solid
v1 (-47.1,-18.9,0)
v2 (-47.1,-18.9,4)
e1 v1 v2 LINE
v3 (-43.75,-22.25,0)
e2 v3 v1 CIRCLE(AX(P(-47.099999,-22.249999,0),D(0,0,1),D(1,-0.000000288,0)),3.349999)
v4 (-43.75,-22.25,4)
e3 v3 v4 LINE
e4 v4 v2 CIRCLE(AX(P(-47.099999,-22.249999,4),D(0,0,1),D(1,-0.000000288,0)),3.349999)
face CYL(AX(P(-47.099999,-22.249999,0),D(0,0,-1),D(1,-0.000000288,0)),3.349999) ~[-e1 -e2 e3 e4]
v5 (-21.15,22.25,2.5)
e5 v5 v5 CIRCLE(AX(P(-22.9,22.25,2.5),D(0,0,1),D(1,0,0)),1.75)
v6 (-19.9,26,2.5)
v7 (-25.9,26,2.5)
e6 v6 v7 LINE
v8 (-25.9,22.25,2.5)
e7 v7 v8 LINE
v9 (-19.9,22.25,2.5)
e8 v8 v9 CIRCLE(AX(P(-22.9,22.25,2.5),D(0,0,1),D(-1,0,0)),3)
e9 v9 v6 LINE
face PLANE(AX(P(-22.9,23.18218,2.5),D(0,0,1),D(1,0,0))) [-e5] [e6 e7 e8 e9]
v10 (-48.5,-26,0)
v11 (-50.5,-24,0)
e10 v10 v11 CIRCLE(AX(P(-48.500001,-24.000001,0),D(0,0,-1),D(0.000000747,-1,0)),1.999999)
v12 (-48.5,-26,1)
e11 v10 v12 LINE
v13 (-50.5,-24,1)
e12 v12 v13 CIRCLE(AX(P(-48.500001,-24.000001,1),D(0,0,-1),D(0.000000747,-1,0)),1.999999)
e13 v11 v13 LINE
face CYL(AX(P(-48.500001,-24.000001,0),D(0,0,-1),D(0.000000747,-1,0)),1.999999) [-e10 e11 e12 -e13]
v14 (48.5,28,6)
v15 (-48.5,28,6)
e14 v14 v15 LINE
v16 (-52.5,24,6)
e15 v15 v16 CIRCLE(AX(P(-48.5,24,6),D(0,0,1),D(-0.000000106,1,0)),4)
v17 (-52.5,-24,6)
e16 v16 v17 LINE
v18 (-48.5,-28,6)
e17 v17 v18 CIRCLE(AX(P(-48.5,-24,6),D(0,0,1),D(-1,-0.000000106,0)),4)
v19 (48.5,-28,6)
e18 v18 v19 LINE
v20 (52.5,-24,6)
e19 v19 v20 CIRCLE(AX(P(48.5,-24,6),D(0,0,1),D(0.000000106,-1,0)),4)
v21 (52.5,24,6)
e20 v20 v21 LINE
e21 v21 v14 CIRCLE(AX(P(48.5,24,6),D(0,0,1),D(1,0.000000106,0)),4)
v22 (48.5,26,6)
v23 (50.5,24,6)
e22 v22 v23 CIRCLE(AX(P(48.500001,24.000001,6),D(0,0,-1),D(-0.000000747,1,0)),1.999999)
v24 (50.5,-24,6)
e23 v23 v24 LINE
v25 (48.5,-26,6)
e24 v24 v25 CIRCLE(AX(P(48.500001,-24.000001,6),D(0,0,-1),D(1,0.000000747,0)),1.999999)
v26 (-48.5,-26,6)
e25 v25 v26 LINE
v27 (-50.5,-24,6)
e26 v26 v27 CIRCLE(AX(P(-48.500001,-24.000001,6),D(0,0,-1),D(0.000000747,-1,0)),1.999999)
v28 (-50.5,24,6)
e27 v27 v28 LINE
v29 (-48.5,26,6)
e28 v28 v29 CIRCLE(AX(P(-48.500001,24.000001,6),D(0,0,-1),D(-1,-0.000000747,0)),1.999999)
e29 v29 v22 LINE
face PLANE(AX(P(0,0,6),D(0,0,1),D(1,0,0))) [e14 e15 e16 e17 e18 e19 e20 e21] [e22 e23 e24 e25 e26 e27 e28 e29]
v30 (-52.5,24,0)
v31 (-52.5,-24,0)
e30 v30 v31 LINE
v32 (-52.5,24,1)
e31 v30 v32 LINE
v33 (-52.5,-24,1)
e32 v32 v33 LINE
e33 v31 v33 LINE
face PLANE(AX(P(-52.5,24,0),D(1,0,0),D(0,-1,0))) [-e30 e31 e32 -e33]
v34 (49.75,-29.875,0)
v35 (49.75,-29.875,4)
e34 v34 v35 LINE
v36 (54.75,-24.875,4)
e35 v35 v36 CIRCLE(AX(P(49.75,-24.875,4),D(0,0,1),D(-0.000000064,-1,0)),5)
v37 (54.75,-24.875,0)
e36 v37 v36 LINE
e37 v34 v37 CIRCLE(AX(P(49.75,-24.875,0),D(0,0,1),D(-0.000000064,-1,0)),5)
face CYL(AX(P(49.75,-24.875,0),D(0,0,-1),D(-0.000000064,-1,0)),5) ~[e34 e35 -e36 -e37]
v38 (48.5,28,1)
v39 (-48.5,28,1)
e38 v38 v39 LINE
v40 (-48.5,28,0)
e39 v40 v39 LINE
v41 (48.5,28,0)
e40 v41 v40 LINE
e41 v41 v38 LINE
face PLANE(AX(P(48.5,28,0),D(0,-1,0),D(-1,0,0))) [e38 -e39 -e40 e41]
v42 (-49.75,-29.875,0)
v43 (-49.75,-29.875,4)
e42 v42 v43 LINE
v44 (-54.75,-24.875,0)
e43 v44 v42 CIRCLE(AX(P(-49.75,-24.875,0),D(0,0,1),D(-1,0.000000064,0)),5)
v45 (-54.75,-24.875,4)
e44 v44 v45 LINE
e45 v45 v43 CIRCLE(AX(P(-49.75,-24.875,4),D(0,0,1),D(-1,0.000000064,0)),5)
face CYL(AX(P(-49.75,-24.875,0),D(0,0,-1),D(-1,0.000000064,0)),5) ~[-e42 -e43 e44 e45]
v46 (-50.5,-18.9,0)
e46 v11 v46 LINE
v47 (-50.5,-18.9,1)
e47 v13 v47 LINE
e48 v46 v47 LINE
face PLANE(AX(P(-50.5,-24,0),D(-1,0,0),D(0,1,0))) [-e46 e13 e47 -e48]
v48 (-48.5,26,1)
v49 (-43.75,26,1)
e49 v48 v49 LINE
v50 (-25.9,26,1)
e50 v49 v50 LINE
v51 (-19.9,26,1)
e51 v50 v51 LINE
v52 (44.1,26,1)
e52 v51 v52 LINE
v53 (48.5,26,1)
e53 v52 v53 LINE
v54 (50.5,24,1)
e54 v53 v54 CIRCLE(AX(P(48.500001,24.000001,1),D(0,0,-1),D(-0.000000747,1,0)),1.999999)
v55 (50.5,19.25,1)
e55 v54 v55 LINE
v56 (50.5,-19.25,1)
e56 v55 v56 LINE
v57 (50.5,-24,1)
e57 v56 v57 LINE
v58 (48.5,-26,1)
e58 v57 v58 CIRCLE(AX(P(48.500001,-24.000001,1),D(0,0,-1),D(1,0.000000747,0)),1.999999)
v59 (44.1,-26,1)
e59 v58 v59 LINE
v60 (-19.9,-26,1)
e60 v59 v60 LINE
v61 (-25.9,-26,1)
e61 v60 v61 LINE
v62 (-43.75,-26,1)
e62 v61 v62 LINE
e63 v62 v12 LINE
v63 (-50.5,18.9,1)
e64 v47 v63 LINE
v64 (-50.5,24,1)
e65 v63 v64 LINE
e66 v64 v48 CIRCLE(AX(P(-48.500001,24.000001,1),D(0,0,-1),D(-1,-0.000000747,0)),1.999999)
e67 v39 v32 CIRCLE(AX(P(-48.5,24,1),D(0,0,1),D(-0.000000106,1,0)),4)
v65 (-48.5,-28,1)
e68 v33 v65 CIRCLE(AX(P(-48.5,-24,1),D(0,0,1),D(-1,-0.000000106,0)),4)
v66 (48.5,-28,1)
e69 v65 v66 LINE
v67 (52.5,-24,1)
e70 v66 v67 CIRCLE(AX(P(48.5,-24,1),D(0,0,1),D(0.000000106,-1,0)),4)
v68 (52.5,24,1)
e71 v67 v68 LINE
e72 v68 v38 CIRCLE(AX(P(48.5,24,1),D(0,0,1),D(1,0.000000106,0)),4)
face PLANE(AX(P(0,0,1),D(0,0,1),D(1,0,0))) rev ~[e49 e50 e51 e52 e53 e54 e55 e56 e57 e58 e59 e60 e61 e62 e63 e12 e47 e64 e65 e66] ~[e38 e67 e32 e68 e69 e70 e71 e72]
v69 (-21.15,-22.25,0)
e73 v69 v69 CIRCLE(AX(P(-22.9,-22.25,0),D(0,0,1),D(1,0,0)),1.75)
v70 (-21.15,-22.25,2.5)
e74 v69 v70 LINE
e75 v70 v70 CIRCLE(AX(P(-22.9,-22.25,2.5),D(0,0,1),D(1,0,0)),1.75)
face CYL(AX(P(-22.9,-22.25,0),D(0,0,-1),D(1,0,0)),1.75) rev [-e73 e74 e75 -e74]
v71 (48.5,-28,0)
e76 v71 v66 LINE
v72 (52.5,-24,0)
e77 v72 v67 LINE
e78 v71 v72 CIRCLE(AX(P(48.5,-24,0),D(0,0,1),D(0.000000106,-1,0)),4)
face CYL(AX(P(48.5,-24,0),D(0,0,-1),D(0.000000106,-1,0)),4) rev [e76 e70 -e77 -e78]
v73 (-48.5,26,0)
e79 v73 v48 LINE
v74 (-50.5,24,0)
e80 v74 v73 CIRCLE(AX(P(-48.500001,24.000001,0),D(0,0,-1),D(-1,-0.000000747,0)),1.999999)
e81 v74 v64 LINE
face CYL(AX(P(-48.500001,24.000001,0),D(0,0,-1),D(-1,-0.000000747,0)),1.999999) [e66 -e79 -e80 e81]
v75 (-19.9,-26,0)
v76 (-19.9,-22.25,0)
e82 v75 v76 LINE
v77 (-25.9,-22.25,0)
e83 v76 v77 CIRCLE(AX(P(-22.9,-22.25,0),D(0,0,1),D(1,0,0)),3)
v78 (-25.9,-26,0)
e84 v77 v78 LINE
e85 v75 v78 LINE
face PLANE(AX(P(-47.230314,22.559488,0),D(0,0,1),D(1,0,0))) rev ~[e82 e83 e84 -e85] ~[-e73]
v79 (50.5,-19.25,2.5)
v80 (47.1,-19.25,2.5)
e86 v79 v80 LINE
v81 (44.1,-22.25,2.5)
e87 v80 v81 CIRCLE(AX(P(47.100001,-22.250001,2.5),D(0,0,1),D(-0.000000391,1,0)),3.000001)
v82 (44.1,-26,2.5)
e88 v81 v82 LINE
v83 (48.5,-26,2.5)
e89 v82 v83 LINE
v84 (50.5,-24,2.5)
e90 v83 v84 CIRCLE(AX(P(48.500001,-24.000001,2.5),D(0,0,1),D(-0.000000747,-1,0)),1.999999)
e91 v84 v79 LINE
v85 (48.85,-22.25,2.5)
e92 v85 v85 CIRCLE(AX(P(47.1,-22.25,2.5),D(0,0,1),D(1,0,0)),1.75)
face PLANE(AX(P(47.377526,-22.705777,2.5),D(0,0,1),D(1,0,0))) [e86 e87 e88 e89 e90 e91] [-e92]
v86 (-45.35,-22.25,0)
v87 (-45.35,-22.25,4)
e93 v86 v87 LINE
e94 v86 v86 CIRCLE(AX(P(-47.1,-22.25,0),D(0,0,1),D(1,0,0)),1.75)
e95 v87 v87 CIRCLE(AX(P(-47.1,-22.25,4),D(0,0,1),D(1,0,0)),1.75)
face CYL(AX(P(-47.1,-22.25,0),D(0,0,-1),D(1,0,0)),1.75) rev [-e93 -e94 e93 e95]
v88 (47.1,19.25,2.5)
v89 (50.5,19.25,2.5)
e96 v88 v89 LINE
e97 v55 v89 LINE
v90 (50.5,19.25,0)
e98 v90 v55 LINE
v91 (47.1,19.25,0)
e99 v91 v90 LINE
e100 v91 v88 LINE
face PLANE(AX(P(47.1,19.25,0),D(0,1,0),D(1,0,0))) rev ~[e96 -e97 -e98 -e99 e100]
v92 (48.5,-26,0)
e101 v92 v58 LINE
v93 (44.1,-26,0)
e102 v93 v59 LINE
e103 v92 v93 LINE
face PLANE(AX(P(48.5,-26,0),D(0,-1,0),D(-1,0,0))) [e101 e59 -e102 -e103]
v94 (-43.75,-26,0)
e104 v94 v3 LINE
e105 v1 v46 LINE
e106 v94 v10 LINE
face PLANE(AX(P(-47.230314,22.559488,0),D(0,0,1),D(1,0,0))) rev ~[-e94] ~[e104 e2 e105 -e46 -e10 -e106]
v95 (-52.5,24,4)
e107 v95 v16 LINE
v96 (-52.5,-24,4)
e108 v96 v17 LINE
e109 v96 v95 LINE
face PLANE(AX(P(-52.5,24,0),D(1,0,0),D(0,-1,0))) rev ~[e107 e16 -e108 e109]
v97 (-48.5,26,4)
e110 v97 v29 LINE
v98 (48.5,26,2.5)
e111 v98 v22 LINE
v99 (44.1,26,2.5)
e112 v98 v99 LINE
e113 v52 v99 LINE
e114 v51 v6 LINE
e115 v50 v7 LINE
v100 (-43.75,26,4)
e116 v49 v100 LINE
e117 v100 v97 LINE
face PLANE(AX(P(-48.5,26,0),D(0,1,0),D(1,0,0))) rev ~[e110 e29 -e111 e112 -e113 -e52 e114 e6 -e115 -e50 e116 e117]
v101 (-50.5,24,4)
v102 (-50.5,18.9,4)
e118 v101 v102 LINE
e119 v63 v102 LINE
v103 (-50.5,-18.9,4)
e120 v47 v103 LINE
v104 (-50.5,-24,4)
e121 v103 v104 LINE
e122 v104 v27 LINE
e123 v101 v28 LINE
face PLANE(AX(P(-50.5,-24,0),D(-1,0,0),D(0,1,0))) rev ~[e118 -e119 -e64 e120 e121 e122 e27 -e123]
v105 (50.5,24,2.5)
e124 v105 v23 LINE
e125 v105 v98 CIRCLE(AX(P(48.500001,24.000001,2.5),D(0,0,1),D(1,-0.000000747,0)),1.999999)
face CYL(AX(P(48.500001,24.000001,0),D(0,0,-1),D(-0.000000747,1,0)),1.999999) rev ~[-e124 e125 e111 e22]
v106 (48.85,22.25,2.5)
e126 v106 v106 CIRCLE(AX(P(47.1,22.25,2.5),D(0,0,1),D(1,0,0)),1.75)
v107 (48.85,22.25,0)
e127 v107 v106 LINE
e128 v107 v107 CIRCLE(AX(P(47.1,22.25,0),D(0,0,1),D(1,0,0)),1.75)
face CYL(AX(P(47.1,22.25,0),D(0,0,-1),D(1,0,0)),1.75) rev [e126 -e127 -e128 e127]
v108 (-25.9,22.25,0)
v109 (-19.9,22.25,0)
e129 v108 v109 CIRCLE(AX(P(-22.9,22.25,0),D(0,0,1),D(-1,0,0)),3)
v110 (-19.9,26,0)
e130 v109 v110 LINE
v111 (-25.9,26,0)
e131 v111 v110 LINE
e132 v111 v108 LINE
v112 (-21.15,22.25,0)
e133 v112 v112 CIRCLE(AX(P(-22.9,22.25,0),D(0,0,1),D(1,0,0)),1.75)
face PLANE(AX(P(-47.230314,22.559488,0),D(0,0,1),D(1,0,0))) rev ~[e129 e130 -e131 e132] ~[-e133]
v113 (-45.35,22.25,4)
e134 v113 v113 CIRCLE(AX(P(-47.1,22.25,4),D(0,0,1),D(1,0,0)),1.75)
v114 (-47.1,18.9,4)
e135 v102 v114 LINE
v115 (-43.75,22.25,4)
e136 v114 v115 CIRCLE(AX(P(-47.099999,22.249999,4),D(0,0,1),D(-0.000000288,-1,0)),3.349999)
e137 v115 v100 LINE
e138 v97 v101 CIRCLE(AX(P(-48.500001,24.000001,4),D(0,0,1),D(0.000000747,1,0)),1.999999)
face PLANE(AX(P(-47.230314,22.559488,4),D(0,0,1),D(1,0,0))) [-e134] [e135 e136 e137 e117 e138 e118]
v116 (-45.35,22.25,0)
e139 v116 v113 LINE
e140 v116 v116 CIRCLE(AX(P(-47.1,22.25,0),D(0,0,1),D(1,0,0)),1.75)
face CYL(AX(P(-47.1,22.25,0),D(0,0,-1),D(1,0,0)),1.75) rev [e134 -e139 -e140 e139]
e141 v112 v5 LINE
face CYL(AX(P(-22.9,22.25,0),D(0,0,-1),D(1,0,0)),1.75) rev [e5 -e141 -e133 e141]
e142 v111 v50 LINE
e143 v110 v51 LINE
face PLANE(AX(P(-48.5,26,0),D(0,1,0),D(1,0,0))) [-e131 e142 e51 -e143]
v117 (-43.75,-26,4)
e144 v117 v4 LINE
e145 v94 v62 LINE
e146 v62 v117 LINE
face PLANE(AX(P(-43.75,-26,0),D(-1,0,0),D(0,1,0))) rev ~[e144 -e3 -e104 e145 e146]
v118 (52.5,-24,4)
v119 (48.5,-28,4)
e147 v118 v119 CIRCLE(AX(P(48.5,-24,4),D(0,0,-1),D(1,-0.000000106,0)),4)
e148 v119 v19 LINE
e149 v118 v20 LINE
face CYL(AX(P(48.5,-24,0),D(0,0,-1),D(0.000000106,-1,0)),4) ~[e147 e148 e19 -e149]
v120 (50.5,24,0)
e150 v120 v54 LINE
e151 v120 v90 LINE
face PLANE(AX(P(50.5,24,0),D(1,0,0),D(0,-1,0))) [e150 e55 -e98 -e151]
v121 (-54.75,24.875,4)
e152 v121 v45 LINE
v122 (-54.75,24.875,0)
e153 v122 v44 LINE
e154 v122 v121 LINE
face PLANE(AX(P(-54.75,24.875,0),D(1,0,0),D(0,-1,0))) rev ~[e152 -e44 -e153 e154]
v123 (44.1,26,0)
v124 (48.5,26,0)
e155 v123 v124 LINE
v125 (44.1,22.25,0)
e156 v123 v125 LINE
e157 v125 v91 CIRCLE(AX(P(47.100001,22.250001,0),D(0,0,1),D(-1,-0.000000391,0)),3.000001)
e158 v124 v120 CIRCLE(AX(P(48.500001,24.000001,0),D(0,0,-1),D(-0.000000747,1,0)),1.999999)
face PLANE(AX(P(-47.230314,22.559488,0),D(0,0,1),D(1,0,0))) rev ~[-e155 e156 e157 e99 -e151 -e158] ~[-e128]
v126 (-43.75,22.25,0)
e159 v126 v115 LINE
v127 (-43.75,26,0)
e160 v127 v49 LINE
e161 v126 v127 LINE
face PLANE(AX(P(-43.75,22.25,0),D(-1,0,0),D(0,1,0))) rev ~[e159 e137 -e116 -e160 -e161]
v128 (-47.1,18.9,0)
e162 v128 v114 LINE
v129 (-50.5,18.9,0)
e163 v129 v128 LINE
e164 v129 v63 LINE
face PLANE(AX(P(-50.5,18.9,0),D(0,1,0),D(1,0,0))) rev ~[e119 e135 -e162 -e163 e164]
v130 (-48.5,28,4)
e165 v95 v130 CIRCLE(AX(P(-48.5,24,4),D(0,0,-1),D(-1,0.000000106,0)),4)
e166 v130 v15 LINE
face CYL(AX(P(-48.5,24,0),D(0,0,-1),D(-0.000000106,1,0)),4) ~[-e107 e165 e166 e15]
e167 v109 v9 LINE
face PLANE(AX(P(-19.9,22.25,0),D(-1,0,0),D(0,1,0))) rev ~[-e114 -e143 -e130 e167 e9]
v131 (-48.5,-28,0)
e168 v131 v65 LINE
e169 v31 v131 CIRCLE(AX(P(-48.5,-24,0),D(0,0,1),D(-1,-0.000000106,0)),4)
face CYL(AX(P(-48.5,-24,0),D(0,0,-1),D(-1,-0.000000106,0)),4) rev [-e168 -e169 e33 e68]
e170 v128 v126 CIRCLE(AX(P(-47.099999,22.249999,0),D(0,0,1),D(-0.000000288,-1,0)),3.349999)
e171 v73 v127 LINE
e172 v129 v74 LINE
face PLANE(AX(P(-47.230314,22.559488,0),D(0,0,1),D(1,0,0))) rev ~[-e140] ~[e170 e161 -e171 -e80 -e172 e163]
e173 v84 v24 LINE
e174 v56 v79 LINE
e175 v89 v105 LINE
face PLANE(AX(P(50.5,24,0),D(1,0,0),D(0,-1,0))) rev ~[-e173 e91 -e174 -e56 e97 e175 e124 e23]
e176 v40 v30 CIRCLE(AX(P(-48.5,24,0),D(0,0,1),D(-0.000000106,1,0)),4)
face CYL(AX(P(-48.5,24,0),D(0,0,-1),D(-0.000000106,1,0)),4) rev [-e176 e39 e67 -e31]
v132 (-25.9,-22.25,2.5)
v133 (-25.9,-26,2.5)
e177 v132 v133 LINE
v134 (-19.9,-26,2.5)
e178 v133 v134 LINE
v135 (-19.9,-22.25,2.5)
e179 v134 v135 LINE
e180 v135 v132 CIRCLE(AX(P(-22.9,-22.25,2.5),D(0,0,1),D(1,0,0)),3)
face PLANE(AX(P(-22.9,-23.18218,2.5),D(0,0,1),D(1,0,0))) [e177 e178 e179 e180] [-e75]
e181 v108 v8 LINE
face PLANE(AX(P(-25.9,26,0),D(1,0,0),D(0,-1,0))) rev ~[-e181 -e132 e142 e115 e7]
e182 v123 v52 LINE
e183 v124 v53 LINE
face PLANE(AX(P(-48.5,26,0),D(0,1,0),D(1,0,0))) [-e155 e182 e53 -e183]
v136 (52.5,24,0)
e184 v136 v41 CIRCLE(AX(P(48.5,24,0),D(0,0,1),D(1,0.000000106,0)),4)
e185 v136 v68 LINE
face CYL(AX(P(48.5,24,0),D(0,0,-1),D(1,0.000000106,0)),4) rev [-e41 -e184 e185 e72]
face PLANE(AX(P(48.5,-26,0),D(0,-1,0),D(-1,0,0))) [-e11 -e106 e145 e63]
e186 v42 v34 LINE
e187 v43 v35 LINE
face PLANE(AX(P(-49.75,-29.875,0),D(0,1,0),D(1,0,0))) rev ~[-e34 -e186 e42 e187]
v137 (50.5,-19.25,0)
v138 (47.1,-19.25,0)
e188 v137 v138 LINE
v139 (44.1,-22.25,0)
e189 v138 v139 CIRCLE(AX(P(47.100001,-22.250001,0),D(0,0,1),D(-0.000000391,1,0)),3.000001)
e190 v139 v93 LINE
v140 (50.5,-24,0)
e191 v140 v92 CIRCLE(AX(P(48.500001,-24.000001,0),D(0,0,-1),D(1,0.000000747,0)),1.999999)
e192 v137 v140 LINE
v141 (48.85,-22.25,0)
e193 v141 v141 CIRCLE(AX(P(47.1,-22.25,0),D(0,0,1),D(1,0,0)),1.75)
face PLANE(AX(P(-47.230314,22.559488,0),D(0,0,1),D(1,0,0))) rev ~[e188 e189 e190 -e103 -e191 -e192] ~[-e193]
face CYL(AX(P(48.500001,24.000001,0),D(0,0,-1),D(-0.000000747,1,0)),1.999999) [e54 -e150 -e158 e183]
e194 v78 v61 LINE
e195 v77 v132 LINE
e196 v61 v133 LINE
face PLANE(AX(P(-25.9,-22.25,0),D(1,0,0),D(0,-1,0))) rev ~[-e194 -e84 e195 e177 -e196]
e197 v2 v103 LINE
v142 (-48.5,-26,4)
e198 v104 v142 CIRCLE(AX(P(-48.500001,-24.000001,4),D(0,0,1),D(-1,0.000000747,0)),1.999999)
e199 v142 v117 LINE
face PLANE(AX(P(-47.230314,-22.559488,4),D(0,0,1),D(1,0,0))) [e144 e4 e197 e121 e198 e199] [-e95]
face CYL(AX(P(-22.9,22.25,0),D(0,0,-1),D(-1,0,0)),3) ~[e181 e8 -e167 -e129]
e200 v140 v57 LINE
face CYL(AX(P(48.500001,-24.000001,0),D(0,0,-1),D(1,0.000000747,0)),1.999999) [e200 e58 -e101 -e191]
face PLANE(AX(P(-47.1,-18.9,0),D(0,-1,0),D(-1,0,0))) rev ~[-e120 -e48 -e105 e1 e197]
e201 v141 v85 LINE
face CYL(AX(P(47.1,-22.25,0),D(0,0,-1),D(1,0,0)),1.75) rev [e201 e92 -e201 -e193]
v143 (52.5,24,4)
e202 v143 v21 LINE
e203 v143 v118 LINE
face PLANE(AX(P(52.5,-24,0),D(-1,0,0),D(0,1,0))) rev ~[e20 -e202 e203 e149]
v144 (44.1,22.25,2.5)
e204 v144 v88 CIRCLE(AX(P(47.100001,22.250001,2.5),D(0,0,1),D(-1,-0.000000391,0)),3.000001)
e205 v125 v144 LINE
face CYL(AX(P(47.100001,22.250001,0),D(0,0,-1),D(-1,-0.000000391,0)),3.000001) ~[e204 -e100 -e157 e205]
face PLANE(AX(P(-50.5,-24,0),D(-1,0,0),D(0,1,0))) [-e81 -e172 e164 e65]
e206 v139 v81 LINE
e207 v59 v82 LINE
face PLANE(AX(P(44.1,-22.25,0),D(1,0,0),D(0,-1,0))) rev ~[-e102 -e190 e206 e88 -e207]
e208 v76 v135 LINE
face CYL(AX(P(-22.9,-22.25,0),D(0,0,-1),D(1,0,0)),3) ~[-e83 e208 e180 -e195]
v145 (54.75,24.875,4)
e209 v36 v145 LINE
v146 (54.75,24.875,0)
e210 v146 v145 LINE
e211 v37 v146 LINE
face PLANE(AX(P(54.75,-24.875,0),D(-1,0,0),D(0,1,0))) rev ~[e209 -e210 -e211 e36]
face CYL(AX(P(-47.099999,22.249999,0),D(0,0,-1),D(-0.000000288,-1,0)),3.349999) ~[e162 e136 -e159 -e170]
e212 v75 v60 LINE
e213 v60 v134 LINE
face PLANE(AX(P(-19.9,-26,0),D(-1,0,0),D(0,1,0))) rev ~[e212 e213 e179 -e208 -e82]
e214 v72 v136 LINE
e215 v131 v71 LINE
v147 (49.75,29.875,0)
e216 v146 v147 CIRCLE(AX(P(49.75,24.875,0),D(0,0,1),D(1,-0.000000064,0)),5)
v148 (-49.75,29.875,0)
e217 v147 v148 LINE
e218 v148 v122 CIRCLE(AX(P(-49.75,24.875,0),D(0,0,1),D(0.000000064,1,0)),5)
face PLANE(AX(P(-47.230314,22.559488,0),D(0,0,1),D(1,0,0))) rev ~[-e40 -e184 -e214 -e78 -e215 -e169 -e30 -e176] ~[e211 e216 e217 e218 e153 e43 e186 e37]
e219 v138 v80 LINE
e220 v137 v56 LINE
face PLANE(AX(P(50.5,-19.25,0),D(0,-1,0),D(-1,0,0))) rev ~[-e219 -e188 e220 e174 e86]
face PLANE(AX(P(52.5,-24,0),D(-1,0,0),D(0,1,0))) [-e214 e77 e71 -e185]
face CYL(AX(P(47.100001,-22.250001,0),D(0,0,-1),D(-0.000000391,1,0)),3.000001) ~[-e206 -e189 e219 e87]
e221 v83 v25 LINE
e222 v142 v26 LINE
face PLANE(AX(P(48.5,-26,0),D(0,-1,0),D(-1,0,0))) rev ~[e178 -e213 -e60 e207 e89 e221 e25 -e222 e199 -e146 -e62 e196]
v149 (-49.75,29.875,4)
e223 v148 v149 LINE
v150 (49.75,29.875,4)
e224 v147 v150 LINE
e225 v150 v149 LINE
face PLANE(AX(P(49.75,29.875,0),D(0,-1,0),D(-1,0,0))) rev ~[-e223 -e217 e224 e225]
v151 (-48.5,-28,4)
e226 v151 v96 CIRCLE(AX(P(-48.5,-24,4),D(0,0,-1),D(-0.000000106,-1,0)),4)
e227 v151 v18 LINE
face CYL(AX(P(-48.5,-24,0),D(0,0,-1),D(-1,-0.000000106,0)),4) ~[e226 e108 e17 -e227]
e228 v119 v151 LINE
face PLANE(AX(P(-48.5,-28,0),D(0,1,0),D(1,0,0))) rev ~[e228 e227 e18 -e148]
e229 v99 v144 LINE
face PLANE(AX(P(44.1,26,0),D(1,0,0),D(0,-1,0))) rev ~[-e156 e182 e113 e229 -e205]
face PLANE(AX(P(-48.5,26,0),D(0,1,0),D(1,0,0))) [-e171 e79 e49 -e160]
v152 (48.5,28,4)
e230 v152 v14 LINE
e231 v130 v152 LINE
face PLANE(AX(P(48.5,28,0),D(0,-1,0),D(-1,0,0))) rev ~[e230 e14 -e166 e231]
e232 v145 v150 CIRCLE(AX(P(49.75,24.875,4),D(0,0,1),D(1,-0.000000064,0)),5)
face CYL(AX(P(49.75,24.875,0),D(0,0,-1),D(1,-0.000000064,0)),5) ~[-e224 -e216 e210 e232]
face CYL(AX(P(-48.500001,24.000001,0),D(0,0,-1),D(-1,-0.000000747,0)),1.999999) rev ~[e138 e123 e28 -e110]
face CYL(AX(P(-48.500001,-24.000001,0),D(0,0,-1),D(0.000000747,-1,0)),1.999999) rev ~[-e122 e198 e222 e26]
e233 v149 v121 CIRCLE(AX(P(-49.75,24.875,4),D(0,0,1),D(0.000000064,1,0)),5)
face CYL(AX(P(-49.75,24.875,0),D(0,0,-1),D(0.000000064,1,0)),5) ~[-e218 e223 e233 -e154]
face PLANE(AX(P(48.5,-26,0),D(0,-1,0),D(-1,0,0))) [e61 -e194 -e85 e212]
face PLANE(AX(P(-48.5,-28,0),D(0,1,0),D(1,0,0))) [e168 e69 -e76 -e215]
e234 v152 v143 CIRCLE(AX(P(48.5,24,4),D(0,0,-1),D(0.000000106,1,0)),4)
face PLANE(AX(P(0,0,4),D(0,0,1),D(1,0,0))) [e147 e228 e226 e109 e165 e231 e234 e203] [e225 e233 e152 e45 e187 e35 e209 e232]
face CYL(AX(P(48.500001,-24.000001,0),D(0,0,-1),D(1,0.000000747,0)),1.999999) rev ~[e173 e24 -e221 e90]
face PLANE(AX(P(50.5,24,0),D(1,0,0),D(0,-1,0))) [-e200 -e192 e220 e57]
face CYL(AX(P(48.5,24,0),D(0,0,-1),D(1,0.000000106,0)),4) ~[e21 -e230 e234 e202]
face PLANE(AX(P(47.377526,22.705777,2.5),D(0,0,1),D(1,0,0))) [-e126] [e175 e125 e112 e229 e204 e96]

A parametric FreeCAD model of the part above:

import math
import FreeCAD as App
import Part
import Sketcher
from FreeCAD import Vector
Q = App.Units.Quantity

doc = App.newDocument("Part")
body = doc.addObject("PartDesign::Body", "Body")

# Sketch on XY plane
sketch1 = doc.addObject("Sketcher::SketchObject", "Sketch")
body.addObject(sketch1)
sketch1.AttachmentSupport = (doc.XY_Plane, [""])
sketch1.MapMode = "FlatFace"
sketch1.addGeometry([
    Part.LineSegment(Vector(48.5, 28, 0), Vector(-48.5, 28, 0)),  # 0
    Part.ArcOfCircle(Part.Circle(Vector(-48.5, 24, 0), Vector(0, 0, 1), 4), math.radians(90.000006), math.radians(179.999994)),  # 1
    Part.LineSegment(Vector(-52.5, 24, 0), Vector(-52.5, -24, 0)),  # 2
    Part.ArcOfCircle(Part.Circle(Vector(-48.5, -24, 0), Vector(0, 0, 1), 4), math.radians(-179.999994), math.radians(-90.000006)),  # 3
    Part.LineSegment(Vector(-48.5, -28, 0), Vector(48.5, -28, 0)),  # 4
    Part.ArcOfCircle(Part.Circle(Vector(48.5, -24, 0), Vector(0, 0, 1), 4), math.radians(-89.999994), math.radians(-0.000006)),  # 5
    Part.LineSegment(Vector(52.5, -24, 0), Vector(52.5, 24, 0)),  # 6
    Part.ArcOfCircle(Part.Circle(Vector(48.5, 24, 0), Vector(0, 0, 1), 4), math.radians(0.000006), math.radians(89.999994)),  # 7
    Part.LineSegment(Vector(-50.5, -24, 0), Vector(-50.5, 24, 0)),  # 8
    Part.ArcOfCircle(Part.Circle(Vector(-48.500001, 24.000001, 0), Vector(0, 0, 1), 1.999999), math.radians(89.999957), math.radians(180.000043)),  # 9
    Part.LineSegment(Vector(-48.5, 26, 0), Vector(48.5, 26, 0)),  # 10
    Part.ArcOfCircle(Part.Circle(Vector(48.500001, 24.000001, 0), Vector(0, 0, 1), 1.999999), math.radians(-0.000043), math.radians(90.000043)),  # 11
    Part.LineSegment(Vector(50.5, 24, 0), Vector(50.5, -24, 0)),  # 12
    Part.ArcOfCircle(Part.Circle(Vector(48.500001, -24.000001, 0), Vector(0, 0, 1), 1.999999), math.radians(-90.000043), math.radians(0.000043)),  # 13
    Part.LineSegment(Vector(48.5, -26, 0), Vector(-48.5, -26, 0)),  # 14
    Part.ArcOfCircle(Part.Circle(Vector(-48.500001, -24.000001, 0), Vector(0, 0, 1), 1.999999), math.radians(179.999957), math.radians(270.000043)),  # 15
], False)
sketch1.addConstraint([
    Sketcher.Constraint("Tangent", 0, 2, 1, 1),
    Sketcher.Constraint("Tangent", 1, 2, 2, 1),
    Sketcher.Constraint("Tangent", 2, 2, 3, 1),
    Sketcher.Constraint("Tangent", 3, 2, 4, 1),
    Sketcher.Constraint("Tangent", 4, 2, 5, 1),
    Sketcher.Constraint("Tangent", 5, 2, 6, 1),
    Sketcher.Constraint("Tangent", 6, 2, 7, 1),
    Sketcher.Constraint("Tangent", 7, 2, 0, 1),
    Sketcher.Constraint("Tangent", 8, 2, 9, 2),
    Sketcher.Constraint("Tangent", 9, 1, 10, 1),
    Sketcher.Constraint("Tangent", 10, 2, 11, 2),
    Sketcher.Constraint("Tangent", 11, 1, 12, 1),
    Sketcher.Constraint("Tangent", 12, 2, 13, 2),
    Sketcher.Constraint("Tangent", 13, 1, 14, 1),
    Sketcher.Constraint("Tangent", 14, 2, 15, 2),
    Sketcher.Constraint("Tangent", 15, 1, 8, 1),
    Sketcher.Constraint("Horizontal", 0),
    Sketcher.Constraint("Vertical", 2),
    Sketcher.Constraint("Horizontal", 4),
    Sketcher.Constraint("Vertical", 6),
    Sketcher.Constraint("Vertical", 8),
    Sketcher.Constraint("Horizontal", 10),
    Sketcher.Constraint("Vertical", 12),
    Sketcher.Constraint("Horizontal", 14),
    Sketcher.Constraint("Coincident", 9, 3, 1, 3),
    Sketcher.Constraint("Coincident", 11, 3, 7, 3),
    Sketcher.Constraint("Coincident", 13, 3, 5, 3),
    Sketcher.Constraint("Equal", 1, 3),
    Sketcher.Constraint("Equal", 3, 5),
    Sketcher.Constraint("Equal", 5, 7),
    Sketcher.Constraint("Equal", 13, 15),
    Sketcher.Constraint("Symmetric", 1, 3, 5, 3, -1, 1),
    Sketcher.Constraint("Radius", 1, Q("4 mm")),
    Sketcher.Constraint("Radius", 9, Q("1.999999 mm")),
    Sketcher.Constraint("DistanceX", 0, 2, 0, 1, Q("97 mm")),
    Sketcher.Constraint("DistanceY", 2, 2, 2, 1, Q("48 mm")),
])
pad1 = doc.addObject("PartDesign::Pad", "Pad")
body.addObject(pad1)
pad1.Profile = sketch1
pad1.Length = 6

# Sketch on XY plane
sketch2 = doc.addObject("Sketcher::SketchObject", "Sketch001")
body.addObject(sketch2)
sketch2.AttachmentSupport = (doc.XY_Plane, [""])
sketch2.MapMode = "FlatFace"
sketch2.addGeometry([
    Part.LineSegment(Vector(49.75, 29.875, 0), Vector(-49.75, 29.875, 0)),  # 0
    Part.ArcOfCircle(Part.Circle(Vector(-49.75, 24.875, 0), Vector(0, 0, 1), 5), math.radians(89.999996), math.radians(180.000004)),  # 1
    Part.LineSegment(Vector(-54.75, 24.875, 0), Vector(-54.75, -24.875, 0)),  # 2
    Part.ArcOfCircle(Part.Circle(Vector(-49.75, -24.875, 0), Vector(0, 0, 1), 5), math.radians(179.999996), math.radians(270.000004)),  # 3
    Part.LineSegment(Vector(-49.75, -29.875, 0), Vector(49.75, -29.875, 0)),  # 4
    Part.ArcOfCircle(Part.Circle(Vector(49.75, -24.875, 0), Vector(0, 0, 1), 5), math.radians(-90.000004), math.radians(0.000004)),  # 5
    Part.LineSegment(Vector(54.75, -24.875, 0), Vector(54.75, 24.875, 0)),  # 6
    Part.ArcOfCircle(Part.Circle(Vector(49.75, 24.875, 0), Vector(0, 0, 1), 5), math.radians(-0.000004), math.radians(90.000004)),  # 7
    Part.LineSegment(Vector(-52.5, -24, 0), Vector(-52.5, 24, 0)),  # 8
    Part.ArcOfCircle(Part.Circle(Vector(-48.5, 24, 0), Vector(0, 0, 1), 4), math.radians(90.000006), math.radians(179.999994)),  # 9
    Part.LineSegment(Vector(-48.5, 28, 0), Vector(48.5, 28, 0)),  # 10
    Part.ArcOfCircle(Part.Circle(Vector(48.5, 24, 0), Vector(0, 0, 1), 4), math.radians(0.000006), math.radians(89.999994)),  # 11
    Part.LineSegment(Vector(52.5, 24, 0), Vector(52.5, -24, 0)),  # 12
    Part.ArcOfCircle(Part.Circle(Vector(48.5, -24, 0), Vector(0, 0, 1), 4), math.radians(-89.999994), math.radians(-0.000006)),  # 13
    Part.LineSegment(Vector(48.5, -28, 0), Vector(-48.5, -28, 0)),  # 14
    Part.ArcOfCircle(Part.Circle(Vector(-48.5, -24, 0), Vector(0, 0, 1), 4), math.radians(-179.999994), math.radians(-90.000006)),  # 15
], False)
sketch2.addConstraint([
    Sketcher.Constraint("Tangent", 0, 2, 1, 1),
    Sketcher.Constraint("Tangent", 1, 2, 2, 1),
    Sketcher.Constraint("Tangent", 2, 2, 3, 1),
    Sketcher.Constraint("Tangent", 3, 2, 4, 1),
    Sketcher.Constraint("Tangent", 4, 2, 5, 1),
    Sketcher.Constraint("Tangent", 5, 2, 6, 1),
    Sketcher.Constraint("Tangent", 6, 2, 7, 1),
    Sketcher.Constraint("Tangent", 7, 2, 0, 1),
    Sketcher.Constraint("Tangent", 8, 2, 9, 2),
    Sketcher.Constraint("Tangent", 9, 1, 10, 1),
    Sketcher.Constraint("Tangent", 10, 2, 11, 2),
    Sketcher.Constraint("Tangent", 11, 1, 12, 1),
    Sketcher.Constraint("Tangent", 12, 2, 13, 2),
    Sketcher.Constraint("Tangent", 13, 1, 14, 1),
    Sketcher.Constraint("Tangent", 14, 2, 15, 2),
    Sketcher.Constraint("Tangent", 15, 1, 8, 1),
    Sketcher.Constraint("Horizontal", 0),
    Sketcher.Constraint("Vertical", 2),
    Sketcher.Constraint("Horizontal", 4),
    Sketcher.Constraint("Vertical", 6),
    Sketcher.Constraint("Vertical", 8),
    Sketcher.Constraint("Horizontal", 10),
    Sketcher.Constraint("Vertical", 12),
    Sketcher.Constraint("Horizontal", 14),
    Sketcher.Constraint("Equal", 1, 3),
    Sketcher.Constraint("Equal", 3, 5),
    Sketcher.Constraint("Equal", 5, 7),
    Sketcher.Constraint("Equal", 9, 11),
    Sketcher.Constraint("Equal", 11, 13),
    Sketcher.Constraint("Equal", 13, 15),
    Sketcher.Constraint("Symmetric", 1, 3, 5, 3, -1, 1),
    Sketcher.Constraint("Symmetric", 9, 3, 13, 3, -1, 1),
    Sketcher.Constraint("Radius", 1, Q("5 mm")),
    Sketcher.Constraint("Radius", 9, Q("4 mm")),
    Sketcher.Constraint("DistanceX", 10, 1, 10, 2, Q("97 mm")),
    Sketcher.Constraint("DistanceY", 8, 1, 8, 2, Q("48 mm")),
    Sketcher.Constraint("DistanceX", 0, 2, 0, 1, Q("99.5 mm")),
    Sketcher.Constraint("DistanceY", 2, 2, 2, 1, Q("49.75 mm")),
])
pad2 = doc.addObject("PartDesign::Pad", "Pad001")
body.addObject(pad2)
pad2.Profile = sketch2
pad2.Length = 4

# Sketch on XY plane
sketch3 = doc.addObject("Sketcher::SketchObject", "Sketch002")
body.addObject(sketch3)
sketch3.AttachmentSupport = (doc.XY_Plane, [""])
sketch3.MapMode = "FlatFace"
sketch3.addGeometry([
    Part.LineSegment(Vector(-19.9, 26, 0), Vector(-25.9, 26, 0)),  # 0
    Part.LineSegment(Vector(-25.9, 26, 0), Vector(-25.9, 22.25, 0)),  # 1
    Part.ArcOfCircle(Part.Circle(Vector(-22.9, 22.25, 0), Vector(0, 0, 1), 3), math.radians(180), math.radians(360)),  # 2
    Part.LineSegment(Vector(-19.9, 22.25, 0), Vector(-19.9, 26, 0)),  # 3
    Part.Circle(Vector(-22.9, 22.25, 0), Vector(0, 0, 1), 1.75),  # 4
    Part.LineSegment(Vector(48.5, 26, 0), Vector(44.1, 26, 0)),  # 5
    Part.LineSegment(Vector(44.1, 26, 0), Vector(44.1, 22.25, 0)),  # 6
    Part.ArcOfCircle(Part.Circle(Vector(47.100001, 22.250001, 0), Vector(0, 0, 1), 3.000001), math.radians(-179.999978), math.radians(-90.000022)),  # 7
    Part.LineSegment(Vector(47.1, 19.25, 0), Vector(50.5, 19.25, 0)),  # 8
    Part.LineSegment(Vector(50.5, 19.25, 0), Vector(50.5, 24, 0)),  # 9
    Part.ArcOfCircle(Part.Circle(Vector(48.500001, 24.000001, 0), Vector(0, 0, 1), 1.999999), math.radians(-0.000043), math.radians(90.000043)),  # 10
    Part.Circle(Vector(47.1, 22.25, 0), Vector(0, 0, 1), 1.75),  # 11
    Part.LineSegment(Vector(50.5, -24, 0), Vector(50.5, -19.25, 0)),  # 12
    Part.LineSegment(Vector(50.5, -19.25, 0), Vector(47.1, -19.25, 0)),  # 13
    Part.ArcOfCircle(Part.Circle(Vector(47.100001, -22.250001, 0), Vector(0, 0, 1), 3.000001), math.radians(90.000022), math.radians(179.999978)),  # 14
    Part.LineSegment(Vector(44.1, -22.25, 0), Vector(44.1, -26, 0)),  # 15
    Part.LineSegment(Vector(44.1, -26, 0), Vector(48.5, -26, 0)),  # 16
    Part.ArcOfCircle(Part.Circle(Vector(48.500001, -24.000001, 0), Vector(0, 0, 1), 1.999999), math.radians(-90.000043), math.radians(0.000043)),  # 17
    Part.Circle(Vector(47.1, -22.25, 0), Vector(0, 0, 1), 1.75),  # 18
    Part.LineSegment(Vector(-25.9, -22.25, 0), Vector(-25.9, -26, 0)),  # 19
    Part.LineSegment(Vector(-25.9, -26, 0), Vector(-19.9, -26, 0)),  # 20
    Part.LineSegment(Vector(-19.9, -26, 0), Vector(-19.9, -22.25, 0)),  # 21
    Part.ArcOfCircle(Part.Circle(Vector(-22.9, -22.25, 0), Vector(0, 0, 1), 3), math.radians(0), math.radians(180)),  # 22
    Part.Circle(Vector(-22.9, -22.25, 0), Vector(0, 0, 1), 1.75),  # 23
], False)
sketch3.addConstraint([
    Sketcher.Constraint("Coincident", 0, 2, 1, 1),
    Sketcher.Constraint("Tangent", 1, 2, 2, 1),
    Sketcher.Constraint("Tangent", 2, 2, 3, 1),
    Sketcher.Constraint("Coincident", 3, 2, 0, 1),
    Sketcher.Constraint("Coincident", 5, 2, 6, 1),
    Sketcher.Constraint("Tangent", 6, 2, 7, 1),
    Sketcher.Constraint("Tangent", 7, 2, 8, 1),
    Sketcher.Constraint("Coincident", 8, 2, 9, 1),
    Sketcher.Constraint("Tangent", 9, 2, 10, 1),
    Sketcher.Constraint("Tangent", 10, 2, 5, 1),
    Sketcher.Constraint("Coincident", 12, 2, 13, 1),
    Sketcher.Constraint("Tangent", 13, 2, 14, 1),
    Sketcher.Constraint("Tangent", 14, 2, 15, 1),
    Sketcher.Constraint("Coincident", 15, 2, 16, 1),
    Sketcher.Constraint("Tangent", 16, 2, 17, 1),
    Sketcher.Constraint("Tangent", 17, 2, 12, 1),
    Sketcher.Constraint("Coincident", 19, 2, 20, 1),
    Sketcher.Constraint("Coincident", 20, 2, 21, 1),
    Sketcher.Constraint("Tangent", 21, 2, 22, 1),
    Sketcher.Constraint("Tangent", 22, 2, 19, 1),
    Sketcher.Constraint("Horizontal", 0),
    Sketcher.Constraint("Vertical", 1),
    Sketcher.Constraint("Vertical", 3),
    Sketcher.Constraint("Horizontal", 5),
    Sketcher.Constraint("Vertical", 6),
    Sketcher.Constraint("Horizontal", 8),
    Sketcher.Constraint("Vertical", 9),
    Sketcher.Constraint("Vertical", 12),
    Sketcher.Constraint("Horizontal", 13),
    Sketcher.Constraint("Vertical", 15),
    Sketcher.Constraint("Horizontal", 16),
    Sketcher.Constraint("Vertical", 19),
    Sketcher.Constraint("Horizontal", 20),
    Sketcher.Constraint("Vertical", 21),
    Sketcher.Constraint("Coincident", 4, 3, 2, 3),
    Sketcher.Constraint("Coincident", 11, 3, 7, 3),
    Sketcher.Constraint("Coincident", 18, 3, 14, 3),
    Sketcher.Constraint("Coincident", 23, 3, 22, 3),
    Sketcher.Constraint("Equal", 2, 7),
    Sketcher.Constraint("Equal", 4, 11),
    Sketcher.Constraint("Equal", 7, 14),
    Sketcher.Constraint("Equal", 10, 17),
    Sketcher.Constraint("Equal", 11, 18),
    Sketcher.Constraint("Equal", 14, 22),
    Sketcher.Constraint("Equal", 18, 23),
    Sketcher.Constraint("Symmetric", 7, 3, 14, 3, -1),
    Sketcher.Constraint("Symmetric", 10, 3, 17, 3, -1),
    Sketcher.Constraint("Symmetric", 2, 3, 22, 3, -1),
    Sketcher.Constraint("Horizontal", 4, 3, 7, 3),
    Sketcher.Constraint("Horizontal", 3, 2, 5, 2),
    Sketcher.Constraint("Horizontal", 16, 2, 19, 2),
    Sketcher.Constraint("Radius", 2, Q("3 mm")),
    Sketcher.Constraint("Radius", 10, Q("1.999999 mm")),
    Sketcher.Constraint("Diameter", 4, Q("3.5 mm")),
    Sketcher.Constraint("DistanceX", 5, 2, 5, 1, Q("4.4 mm")),
    Sketcher.Constraint("DistanceY", -1, 1, 10, 3, Q("24.000001 mm")),
    Sketcher.Constraint("DistanceX", 2, 3, 7, 3, Q("70.000001 mm")),
    Sketcher.Constraint("DistanceY", 1, 2, 1, 1, Q("3.75 mm")),
    Sketcher.Constraint("DistanceX", 2, 3, -1, 1, Q("22.9 mm")),
])
pad3 = doc.addObject("PartDesign::Pad", "Pad002")
body.addObject(pad3)
pad3.Profile = sketch3
pad3.Length = 2.5

# Sketch on XY plane
sketch4 = doc.addObject("Sketcher::SketchObject", "Sketch003")
body.addObject(sketch4)
sketch4.AttachmentSupport = (doc.XY_Plane, [""])
sketch4.MapMode = "FlatFace"
sketch4.addGeometry([
    Part.LineSegment(Vector(-43.75, 26, 0), Vector(-48.5, 26, 0)),  # 0
    Part.ArcOfCircle(Part.Circle(Vector(-48.500001, 24.000001, 0), Vector(0, 0, 1), 1.999999), math.radians(89.999957), math.radians(180.000043)),  # 1
    Part.LineSegment(Vector(-50.5, 24, 0), Vector(-50.5, 18.9, 0)),  # 2
    Part.LineSegment(Vector(-50.5, 18.9, 0), Vector(-47.1, 18.9, 0)),  # 3
    Part.ArcOfCircle(Part.Circle(Vector(-47.099999, 22.249999, 0), Vector(0, 0, 1), 3.349999), math.radians(-90.000017), math.radians(0.000017)),  # 4
    Part.LineSegment(Vector(-43.75, 22.25, 0), Vector(-43.75, 26, 0)),  # 5
    Part.Circle(Vector(-47.1, 22.25, 0), Vector(0, 0, 1), 1.75),  # 6
    Part.LineSegment(Vector(-47.1, -18.9, 0), Vector(-50.5, -18.9, 0)),  # 7
    Part.LineSegment(Vector(-50.5, -18.9, 0), Vector(-50.5, -24, 0)),  # 8
    Part.ArcOfCircle(Part.Circle(Vector(-48.500001, -24.000001, 0), Vector(0, 0, 1), 1.999999), math.radians(179.999957), math.radians(270.000043)),  # 9
    Part.LineSegment(Vector(-48.5, -26, 0), Vector(-43.75, -26, 0)),  # 10
    Part.LineSegment(Vector(-43.75, -26, 0), Vector(-43.75, -22.25, 0)),  # 11
    Part.ArcOfCircle(Part.Circle(Vector(-47.099999, -22.249999, 0), Vector(0, 0, 1), 3.349999), math.radians(-0.000017), math.radians(90.000017)),  # 12
    Part.Circle(Vector(-47.1, -22.25, 0), Vector(0, 0, 1), 1.75),  # 13
], False)
sketch4.addConstraint([
    Sketcher.Constraint("Tangent", 0, 2, 1, 1),
    Sketcher.Constraint("Tangent", 1, 2, 2, 1),
    Sketcher.Constraint("Coincident", 2, 2, 3, 1),
    Sketcher.Constraint("Tangent", 3, 2, 4, 1),
    Sketcher.Constraint("Tangent", 4, 2, 5, 1),
    Sketcher.Constraint("Coincident", 5, 2, 0, 1),
    Sketcher.Constraint("Coincident", 7, 2, 8, 1),
    Sketcher.Constraint("Tangent", 8, 2, 9, 1),
    Sketcher.Constraint("Tangent", 9, 2, 10, 1),
    Sketcher.Constraint("Coincident", 10, 2, 11, 1),
    Sketcher.Constraint("Tangent", 11, 2, 12, 1),
    Sketcher.Constraint("Tangent", 12, 2, 7, 1),
    Sketcher.Constraint("Horizontal", 0),
    Sketcher.Constraint("Vertical", 2),
    Sketcher.Constraint("Horizontal", 3),
    Sketcher.Constraint("Vertical", 5),
    Sketcher.Constraint("Horizontal", 7),
    Sketcher.Constraint("Vertical", 8),
    Sketcher.Constraint("Horizontal", 10),
    Sketcher.Constraint("Vertical", 11),
    Sketcher.Constraint("Coincident", 6, 3, 4, 3),
    Sketcher.Constraint("Coincident", 13, 3, 12, 3),
    Sketcher.Constraint("Equal", 1, 9),
    Sketcher.Constraint("Equal", 4, 12),
    Sketcher.Constraint("Equal", 6, 13),
    Sketcher.Constraint("Symmetric", 1, 3, 9, 3, -1),
    Sketcher.Constraint("Symmetric", 4, 3, 12, 3, -1),
    Sketcher.Constraint("Radius", 1, Q("1.999999 mm")),
    Sketcher.Constraint("Diameter", 6, Q("3.5 mm")),
    Sketcher.Constraint("Radius", 4, Q("3.349999 mm")),
    Sketcher.Constraint("DistanceX", 3, 1, 3, 2, Q("3.4 mm")),
    Sketcher.Constraint("DistanceY", 2, 2, 2, 1, Q("5.1 mm")),
    Sketcher.Constraint("DistanceY", -1, 1, 1, 3, Q("24.000001 mm")),
    Sketcher.Constraint("DistanceX", 1, 3, -1, 1, Q("48.500001 mm")),
])
pad4 = doc.addObject("PartDesign::Pad", "Pad003")
body.addObject(pad4)
pad4.Profile = sketch4
pad4.Length = 4

# Sketch on XY plane
sketch5 = doc.addObject("Sketcher::SketchObject", "Sketch004")
body.addObject(sketch5)
sketch5.AttachmentSupport = (doc.XY_Plane, [""])
sketch5.MapMode = "FlatFace"
sketch5.addGeometry([
    Part.LineSegment(Vector(48.5, 28, 0), Vector(-48.5, 28, 0)),  # 0
    Part.ArcOfCircle(Part.Circle(Vector(-48.5, 24, 0), Vector(0, 0, 1), 4), math.radians(90.000006), math.radians(179.999994)),  # 1
    Part.LineSegment(Vector(-52.5, 24, 0), Vector(-52.5, -24, 0)),  # 2
    Part.ArcOfCircle(Part.Circle(Vector(-48.5, -24, 0), Vector(0, 0, 1), 4), math.radians(-179.999994), math.radians(-90.000006)),  # 3
    Part.LineSegment(Vector(-48.5, -28, 0), Vector(48.5, -28, 0)),  # 4
    Part.ArcOfCircle(Part.Circle(Vector(48.5, -24, 0), Vector(0, 0, 1), 4), math.radians(-89.999994), math.radians(-0.000006)),  # 5
    Part.LineSegment(Vector(52.5, -24, 0), Vector(52.5, 24, 0)),  # 6
    Part.ArcOfCircle(Part.Circle(Vector(48.5, 24, 0), Vector(0, 0, 1), 4), math.radians(0.000006), math.radians(89.999994)),  # 7
    Part.LineSegment(Vector(-50.5, -24, 0), Vector(-50.5, 24, 0)),  # 8
    Part.ArcOfCircle(Part.Circle(Vector(-48.500001, 24.000001, 0), Vector(0, 0, 1), 1.999999), math.radians(89.999957), math.radians(180.000043)),  # 9
    Part.LineSegment(Vector(-48.5, 26, 0), Vector(48.5, 26, 0)),  # 10
    Part.ArcOfCircle(Part.Circle(Vector(48.500001, 24.000001, 0), Vector(0, 0, 1), 1.999999), math.radians(-0.000043), math.radians(90.000043)),  # 11
    Part.LineSegment(Vector(50.5, 24, 0), Vector(50.5, -24, 0)),  # 12
    Part.ArcOfCircle(Part.Circle(Vector(48.500001, -24.000001, 0), Vector(0, 0, 1), 1.999999), math.radians(-90.000043), math.radians(0.000043)),  # 13
    Part.LineSegment(Vector(48.5, -26, 0), Vector(-48.5, -26, 0)),  # 14
    Part.ArcOfCircle(Part.Circle(Vector(-48.500001, -24.000001, 0), Vector(0, 0, 1), 1.999999), math.radians(179.999957), math.radians(270.000043)),  # 15
], False)
sketch5.addConstraint([
    Sketcher.Constraint("Tangent", 0, 2, 1, 1),
    Sketcher.Constraint("Tangent", 1, 2, 2, 1),
    Sketcher.Constraint("Tangent", 2, 2, 3, 1),
    Sketcher.Constraint("Tangent", 3, 2, 4, 1),
    Sketcher.Constraint("Tangent", 4, 2, 5, 1),
    Sketcher.Constraint("Tangent", 5, 2, 6, 1),
    Sketcher.Constraint("Tangent", 6, 2, 7, 1),
    Sketcher.Constraint("Tangent", 7, 2, 0, 1),
    Sketcher.Constraint("Tangent", 8, 2, 9, 2),
    Sketcher.Constraint("Tangent", 9, 1, 10, 1),
    Sketcher.Constraint("Tangent", 10, 2, 11, 2),
    Sketcher.Constraint("Tangent", 11, 1, 12, 1),
    Sketcher.Constraint("Tangent", 12, 2, 13, 2),
    Sketcher.Constraint("Tangent", 13, 1, 14, 1),
    Sketcher.Constraint("Tangent", 14, 2, 15, 2),
    Sketcher.Constraint("Tangent", 15, 1, 8, 1),
    Sketcher.Constraint("Horizontal", 0),
    Sketcher.Constraint("Vertical", 2),
    Sketcher.Constraint("Horizontal", 4),
    Sketcher.Constraint("Vertical", 6),
    Sketcher.Constraint("Vertical", 8),
    Sketcher.Constraint("Horizontal", 10),
    Sketcher.Constraint("Vertical", 12),
    Sketcher.Constraint("Horizontal", 14),
    Sketcher.Constraint("Coincident", 9, 3, 1, 3),
    Sketcher.Constraint("Coincident", 11, 3, 7, 3),
    Sketcher.Constraint("Coincident", 13, 3, 5, 3),
    Sketcher.Constraint("Equal", 1, 3),
    Sketcher.Constraint("Equal", 3, 5),
    Sketcher.Constraint("Equal", 5, 7),
    Sketcher.Constraint("Equal", 13, 15),
    Sketcher.Constraint("Symmetric", 1, 3, 5, 3, -1, 1),
    Sketcher.Constraint("Radius", 1, Q("4 mm")),
    Sketcher.Constraint("Radius", 9, Q("1.999999 mm")),
    Sketcher.Constraint("DistanceX", 0, 2, 0, 1, Q("97 mm")),
    Sketcher.Constraint("DistanceY", 2, 2, 2, 1, Q("48 mm")),
])
pocket1 = doc.addObject("PartDesign::Pocket", "Pocket")
body.addObject(pocket1)
pocket1.Profile = sketch5
pocket1.Length = 1
pocket1.Reversed = True

doc.recompute()
